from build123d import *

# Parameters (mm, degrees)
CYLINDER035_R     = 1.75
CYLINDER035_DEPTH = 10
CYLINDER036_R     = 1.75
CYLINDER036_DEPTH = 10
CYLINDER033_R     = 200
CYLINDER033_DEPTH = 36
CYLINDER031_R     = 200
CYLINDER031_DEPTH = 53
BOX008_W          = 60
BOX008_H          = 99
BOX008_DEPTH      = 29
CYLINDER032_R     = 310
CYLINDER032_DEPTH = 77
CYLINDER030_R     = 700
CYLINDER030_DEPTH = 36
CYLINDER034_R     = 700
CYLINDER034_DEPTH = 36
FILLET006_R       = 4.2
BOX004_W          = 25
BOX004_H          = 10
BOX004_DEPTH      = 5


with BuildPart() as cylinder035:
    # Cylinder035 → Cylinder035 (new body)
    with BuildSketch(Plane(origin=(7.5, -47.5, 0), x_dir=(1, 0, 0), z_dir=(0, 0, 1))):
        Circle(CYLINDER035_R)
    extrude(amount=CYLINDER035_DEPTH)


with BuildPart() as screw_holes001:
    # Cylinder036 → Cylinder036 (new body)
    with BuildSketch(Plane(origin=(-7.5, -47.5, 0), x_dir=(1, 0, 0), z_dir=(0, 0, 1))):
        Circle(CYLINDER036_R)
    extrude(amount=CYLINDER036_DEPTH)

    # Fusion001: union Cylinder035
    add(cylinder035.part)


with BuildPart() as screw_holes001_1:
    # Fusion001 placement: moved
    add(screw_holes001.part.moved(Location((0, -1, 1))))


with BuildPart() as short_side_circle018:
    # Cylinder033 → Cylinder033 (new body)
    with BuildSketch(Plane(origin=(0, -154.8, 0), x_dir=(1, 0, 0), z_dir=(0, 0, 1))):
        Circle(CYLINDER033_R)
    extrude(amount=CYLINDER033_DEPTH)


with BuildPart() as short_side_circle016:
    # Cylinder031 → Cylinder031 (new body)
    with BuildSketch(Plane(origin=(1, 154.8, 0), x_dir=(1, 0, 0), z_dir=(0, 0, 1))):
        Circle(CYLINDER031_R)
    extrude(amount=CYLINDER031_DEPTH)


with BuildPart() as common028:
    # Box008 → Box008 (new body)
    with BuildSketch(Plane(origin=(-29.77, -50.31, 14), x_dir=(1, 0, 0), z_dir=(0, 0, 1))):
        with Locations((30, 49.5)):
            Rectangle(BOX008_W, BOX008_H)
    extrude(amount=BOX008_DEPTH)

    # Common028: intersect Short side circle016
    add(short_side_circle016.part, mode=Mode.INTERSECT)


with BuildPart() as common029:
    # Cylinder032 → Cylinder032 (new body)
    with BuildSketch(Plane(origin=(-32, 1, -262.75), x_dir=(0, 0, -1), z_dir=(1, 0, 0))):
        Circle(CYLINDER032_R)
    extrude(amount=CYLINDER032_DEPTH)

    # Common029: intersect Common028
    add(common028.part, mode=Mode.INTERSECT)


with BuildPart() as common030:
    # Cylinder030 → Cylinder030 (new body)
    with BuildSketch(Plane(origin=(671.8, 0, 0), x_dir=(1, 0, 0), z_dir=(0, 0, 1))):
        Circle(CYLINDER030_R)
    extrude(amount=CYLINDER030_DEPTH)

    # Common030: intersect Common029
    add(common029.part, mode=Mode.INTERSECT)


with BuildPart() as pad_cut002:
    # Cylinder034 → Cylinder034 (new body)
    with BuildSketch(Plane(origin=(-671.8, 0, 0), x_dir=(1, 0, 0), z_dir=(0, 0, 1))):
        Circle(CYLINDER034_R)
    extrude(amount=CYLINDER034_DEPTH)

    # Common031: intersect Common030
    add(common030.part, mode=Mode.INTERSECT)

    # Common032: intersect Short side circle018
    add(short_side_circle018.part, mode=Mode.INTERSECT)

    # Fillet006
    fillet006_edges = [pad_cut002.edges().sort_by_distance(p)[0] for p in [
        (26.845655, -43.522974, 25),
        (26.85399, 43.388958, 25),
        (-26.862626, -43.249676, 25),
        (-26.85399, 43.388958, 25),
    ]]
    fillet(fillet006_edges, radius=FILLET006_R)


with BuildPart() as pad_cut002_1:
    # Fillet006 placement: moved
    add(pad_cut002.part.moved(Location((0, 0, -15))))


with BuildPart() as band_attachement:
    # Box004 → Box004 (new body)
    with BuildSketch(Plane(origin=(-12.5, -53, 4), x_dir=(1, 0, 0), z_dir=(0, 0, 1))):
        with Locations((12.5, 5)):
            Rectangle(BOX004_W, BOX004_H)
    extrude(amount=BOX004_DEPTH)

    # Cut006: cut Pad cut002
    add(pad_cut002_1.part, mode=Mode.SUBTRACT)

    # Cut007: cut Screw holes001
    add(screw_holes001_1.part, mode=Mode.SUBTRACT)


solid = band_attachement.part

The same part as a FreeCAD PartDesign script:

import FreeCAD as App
import Part
import Sketcher
from FreeCAD import Vector


def edges_at(feature, points):
    """Names of the edges that pass closest to the given points."""
    edges = feature.Shape.Edges
    near = lambda p: min(range(len(edges)), key=lambda i: edges[i].distToShape(Part.Vertex(*p))[0])
    return sorted({f"Edge{near(p) + 1}" for p in points})

doc = App.newDocument("Part")
body = doc.addObject("PartDesign::Body", "Body")

# Sketch on XY plane
sketch1 = body.newObject("Sketcher::SketchObject", "Sketch")
sketch1.AttachmentSupport = (doc.getObject("XY_Plane"), [""])
sketch1.MapMode = "FlatFace"
sketch1.addGeometry(Part.Circle(Vector(7.5, -47.5, 0), Vector(0, 0, 1), 1.8), False)
sketch1.addConstraint(Sketcher.Constraint("Diameter", 0, 3.5))
sketch1.addConstraint(Sketcher.Constraint("DistanceX", -1, 1, 0, 3, 7.5))
sketch1.addConstraint(Sketcher.Constraint("DistanceY", 0, 3, -1, 1, 47.5))
pad1 = body.newObject("PartDesign::Pad", "Pad")
pad1.Profile = sketch1
pad1.Length = 10
body2 = doc.addObject("PartDesign::Body", "Body001")
body2.AllowCompound = True

# Sketch on XY plane
sketch2 = body2.newObject("Sketcher::SketchObject", "Sketch001")
sketch2.AttachmentSupport = (doc.getObject("XY_Plane001"), [""])
sketch2.MapMode = "FlatFace"
sketch2.addGeometry(Part.Circle(Vector(-7.5, -47.5, 0), Vector(0, 0, 1), 1.8), False)
sketch2.addConstraint(Sketcher.Constraint("Diameter", 0, 3.5))
sketch2.addConstraint(Sketcher.Constraint("DistanceX", 0, 3, -1, 1, 7.5))
sketch2.addConstraint(Sketcher.Constraint("DistanceY", 0, 3, -1, 1, 47.5))
pad2 = body2.newObject("PartDesign::Pad", "Pad001")
pad2.Profile = sketch2
pad2.Length = 10
doc.recompute()

boolean = body2.newObject("PartDesign::Boolean", "Boolean")
boolean.Type = "Fuse"
boolean.addObjects([body])
body3 = doc.addObject("PartDesign::Body", "Body002")
body3.AllowCompound = True
doc.recompute()

body2.Placement = App.Placement(Vector(0, -1, 1), App.Rotation(Vector(0, 0, 1), 0))
boolean2 = body3.newObject("PartDesign::Boolean", "Boolean001")
boolean2.Type = "Fuse"
boolean2.addObjects([body2])
body4 = doc.addObject("PartDesign::Body", "Body003")

# Sketch on XY plane
sketch3 = body4.newObject("Sketcher::SketchObject", "Sketch002")
sketch3.AttachmentSupport = (doc.getObject("XY_Plane003"), [""])
sketch3.MapMode = "FlatFace"
sketch3.addGeometry(Part.Circle(Vector(0, -155, 0), Vector(0, 0, 1), 200), False)
sketch3.addConstraint(Sketcher.Constraint("PointOnObject", 0, 3, -2))
sketch3.addConstraint(Sketcher.Constraint("Diameter", 0, 400.0))
sketch3.addConstraint(Sketcher.Constraint("DistanceY", 0, 3, -1, 1, 154.8))
pad3 = body4.newObject("PartDesign::Pad", "Pad002")
pad3.Profile = sketch3
pad3.Length = 36
body5 = doc.addObject("PartDesign::Body", "Body004")

# Sketch on XY plane
sketch4 = body5.newObject("Sketcher::SketchObject", "Sketch003")
sketch4.AttachmentSupport = (doc.getObject("XY_Plane004"), [""])
sketch4.MapMode = "FlatFace"
sketch4.addGeometry(Part.Circle(Vector(1, 155, 0), Vector(0, 0, 1), 200), False)
sketch4.addConstraint(Sketcher.Constraint("Diameter", 0, 400.0))
sketch4.addConstraint(Sketcher.Constraint("DistanceX", -1, 1, 0, 3, 1.0))
sketch4.addConstraint(Sketcher.Constraint("DistanceY", -1, 1, 0, 3, 154.8))
pad4 = body5.newObject("PartDesign::Pad", "Pad003")
pad4.Profile = sketch4
pad4.Length = 53
body6 = doc.addObject("PartDesign::Body", "Body005")

# Sketch on XY plane
sketch5 = body6.newObject("Sketcher::SketchObject", "Sketch004")
sketch5.AttachmentSupport = (doc.getObject("XY_Plane005"), [""])
sketch5.MapMode = "FlatFace"
sketch5.AttachmentOffset = App.Placement(Vector(0, 0, 14), App.Rotation())
sketch5.addGeometry(Part.LineSegment(Vector(-30, 49, 0), Vector(-30, -50, 0)), False)
sketch5.addGeometry(Part.LineSegment(Vector(-30, -50, 0), Vector(30, -50, 0)), False)
sketch5.addGeometry(Part.LineSegment(Vector(30, -50, 0), Vector(30, 49, 0)), False)
sketch5.addGeometry(Part.LineSegment(Vector(30, 49, 0), Vector(-30, 49, 0)), False)
sketch5.addConstraint(Sketcher.Constraint("Coincident", 0, 2, 1, 1))
sketch5.addConstraint(Sketcher.Constraint("Coincident", 1, 2, 2, 1))
sketch5.addConstraint(Sketcher.Constraint("Coincident", 2, 2, 3, 1))
sketch5.addConstraint(Sketcher.Constraint("Coincident", 3, 2, 0, 1))
sketch5.addConstraint(Sketcher.Constraint("Vertical", 0))
sketch5.addConstraint(Sketcher.Constraint("Horizontal", 1))
sketch5.addConstraint(Sketcher.Constraint("Vertical", 2))
sketch5.addConstraint(Sketcher.Constraint("Horizontal", 3))
sketch5.addConstraint(Sketcher.Constraint("DistanceX", 1, 1, 1, 2, 60.0))
sketch5.addConstraint(Sketcher.Constraint("DistanceY", 0, 2, 0, 1, 99.0))
sketch5.addConstraint(Sketcher.Constraint("DistanceX", 0, 2, -1, 1, 29.77))
sketch5.addConstraint(Sketcher.Constraint("DistanceY", 0, 2, -1, 1, 50.31))
pad5 = body6.newObject("PartDesign::Pad", "Pad004")
pad5.Profile = sketch5
pad5.Length = 29
doc.recompute()

boolean3 = body6.newObject("PartDesign::Boolean", "Boolean002")
boolean3.Type = "Common"
boolean3.addObjects([body5])
body7 = doc.addObject("PartDesign::Body", "Body006")

# Sketch on YZ plane
sketch6 = body7.newObject("Sketcher::SketchObject", "Sketch005")
sketch6.AttachmentSupport = (doc.getObject("YZ_Plane006"), [""])
sketch6.MapMode = "FlatFace"
sketch6.AttachmentOffset = App.Placement(Vector(0, 0, -32), App.Rotation())
sketch6.addGeometry(Part.Circle(Vector(1, -263, 0), Vector(0, 0, 1), 310), False)
sketch6.addConstraint(Sketcher.Constraint("Diameter", 0, 620.0))
sketch6.addConstraint(Sketcher.Constraint("DistanceX", -1, 1, 0, 3, 1.0))
sketch6.addConstraint(Sketcher.Constraint("DistanceY", 0, 3, -1, 1, 262.75))
pad6 = body7.newObject("PartDesign::Pad", "Pad005")
pad6.Profile = sketch6
pad6.Length = 77
doc.recompute()

boolean4 = body7.newObject("PartDesign::Boolean", "Boolean003")
boolean4.Type = "Common"
boolean4.addObjects([body6])
body8 = doc.addObject("PartDesign::Body", "Body007")

# Sketch on XY plane
sketch7 = body8.newObject("Sketcher::SketchObject", "Sketch006")
sketch7.AttachmentSupport = (doc.getObject("XY_Plane007"), [""])
sketch7.MapMode = "FlatFace"
sketch7.addGeometry(Part.Circle(Vector(672, 0, 0), Vector(0, 0, 1), 700), False)
sketch7.addConstraint(Sketcher.Constraint("PointOnObject", 0, 3, -1))
sketch7.addConstraint(Sketcher.Constraint("Diameter", 0, 1400.0))
sketch7.addConstraint(Sketcher.Constraint("DistanceX", -1, 1, 0, 3, 671.8))
pad7 = body8.newObject("PartDesign::Pad", "Pad006")
pad7.Profile = sketch7
pad7.Length = 36
doc.recompute()

boolean5 = body8.newObject("PartDesign::Boolean", "Boolean004")
boolean5.Type = "Common"
boolean5.addObjects([body7])
body9 = doc.addObject("PartDesign::Body", "Body008")

# Sketch on XY plane
sketch8 = body9.newObject("Sketcher::SketchObject", "Sketch007")
sketch8.AttachmentSupport = (doc.getObject("XY_Plane008"), [""])
sketch8.MapMode = "FlatFace"
sketch8.addGeometry(Part.Circle(Vector(-672, 0, 0), Vector(0, 0, 1), 700), False)
sketch8.addConstraint(Sketcher.Constraint("PointOnObject", 0, 3, -1))
sketch8.addConstraint(Sketcher.Constraint("Diameter", 0, 1400.0))
sketch8.addConstraint(Sketcher.Constraint("DistanceX", 0, 3, -1, 1, 671.8))
pad8 = body9.newObject("PartDesign::Pad", "Pad007")
pad8.Profile = sketch8
pad8.Length = 36
doc.recompute()

boolean6 = body9.newObject("PartDesign::Boolean", "Boolean005")
boolean6.Type = "Common"
boolean6.addObjects([body8])
doc.recompute()

boolean7 = body9.newObject("PartDesign::Boolean", "Boolean006")
boolean7.Type = "Common"
boolean7.addObjects([body4])
doc.recompute()

fillet = body9.newObject("PartDesign::Fillet", "Fillet")
fillet.Base = (boolean7, edges_at(boolean7, [
    (26.846, -43.523, 25),
    (26.854, 43.389, 25),
    (-26.863, -43.25, 25),
    (-26.854, 43.389, 25),
]))
fillet.Radius = 4.2
body10 = doc.addObject("PartDesign::Body", "Body009")
doc.recompute()

body9.Placement = App.Placement(Vector(0, 0, -15), App.Rotation(Vector(0, 0, 1), 0))
boolean8 = body10.newObject("PartDesign::Boolean", "Boolean007")
boolean8.Type = "Fuse"
boolean8.addObjects([body9])
body11 = doc.addObject("PartDesign::Body", "Body010")

# Sketch on XY plane
sketch9 = body11.newObject("Sketcher::SketchObject", "Sketch008")
sketch9.AttachmentSupport = (doc.getObject("XY_Plane010"), [""])
sketch9.MapMode = "FlatFace"
sketch9.AttachmentOffset = App.Placement(Vector(0, 0, 4), App.Rotation())
sketch9.addGeometry(Part.LineSegment(Vector(-12, -43, 0), Vector(-12, -53, 0)), False)
sketch9.addGeometry(Part.LineSegment(Vector(-12, -53, 0), Vector(12, -53, 0)), False)
sketch9.addGeometry(Part.LineSegment(Vector(12, -53, 0), Vector(12, -43, 0)), False)
sketch9.addGeometry(Part.LineSegment(Vector(12, -43, 0), Vector(-12, -43, 0)), False)
sketch9.addConstraint(Sketcher.Constraint("Coincident", 0, 2, 1, 1))
sketch9.addConstraint(Sketcher.Constraint("Coincident", 1, 2, 2, 1))
sketch9.addConstraint(Sketcher.Constraint("Coincident", 2, 2, 3, 1))
sketch9.addConstraint(Sketcher.Constraint("Coincident", 3, 2, 0, 1))
sketch9.addConstraint(Sketcher.Constraint("Vertical", 0))
sketch9.addConstraint(Sketcher.Constraint("Horizontal", 1))
sketch9.addConstraint(Sketcher.Constraint("Vertical", 2))
sketch9.addConstraint(Sketcher.Constraint("Horizontal", 3))
sketch9.addConstraint(Sketcher.Constraint("DistanceX", 1, 1, 1, 2, 25.0))
sketch9.addConstraint(Sketcher.Constraint("DistanceY", 0, 2, 0, 1, 10.0))
sketch9.addConstraint(Sketcher.Constraint("DistanceY", 0, 2, -1, 1, 53.0))
sketch9.addConstraint(Sketcher.Constraint("DistanceX", 0, 2, -1, 1, 12.5))
pad9 = body11.newObject("PartDesign::Pad", "Pad008")
pad9.Profile = sketch9
pad9.Length = 5
doc.recompute()

boolean9 = body11.newObject("PartDesign::Boolean", "Boolean008")
boolean9.Type = "Cut"
boolean9.addObjects([body10])
doc.recompute()

boolean10 = body11.newObject("PartDesign::Boolean", "Boolean009")
boolean10.Type = "Cut"
boolean10.addObjects([body3])

doc.recompute()
